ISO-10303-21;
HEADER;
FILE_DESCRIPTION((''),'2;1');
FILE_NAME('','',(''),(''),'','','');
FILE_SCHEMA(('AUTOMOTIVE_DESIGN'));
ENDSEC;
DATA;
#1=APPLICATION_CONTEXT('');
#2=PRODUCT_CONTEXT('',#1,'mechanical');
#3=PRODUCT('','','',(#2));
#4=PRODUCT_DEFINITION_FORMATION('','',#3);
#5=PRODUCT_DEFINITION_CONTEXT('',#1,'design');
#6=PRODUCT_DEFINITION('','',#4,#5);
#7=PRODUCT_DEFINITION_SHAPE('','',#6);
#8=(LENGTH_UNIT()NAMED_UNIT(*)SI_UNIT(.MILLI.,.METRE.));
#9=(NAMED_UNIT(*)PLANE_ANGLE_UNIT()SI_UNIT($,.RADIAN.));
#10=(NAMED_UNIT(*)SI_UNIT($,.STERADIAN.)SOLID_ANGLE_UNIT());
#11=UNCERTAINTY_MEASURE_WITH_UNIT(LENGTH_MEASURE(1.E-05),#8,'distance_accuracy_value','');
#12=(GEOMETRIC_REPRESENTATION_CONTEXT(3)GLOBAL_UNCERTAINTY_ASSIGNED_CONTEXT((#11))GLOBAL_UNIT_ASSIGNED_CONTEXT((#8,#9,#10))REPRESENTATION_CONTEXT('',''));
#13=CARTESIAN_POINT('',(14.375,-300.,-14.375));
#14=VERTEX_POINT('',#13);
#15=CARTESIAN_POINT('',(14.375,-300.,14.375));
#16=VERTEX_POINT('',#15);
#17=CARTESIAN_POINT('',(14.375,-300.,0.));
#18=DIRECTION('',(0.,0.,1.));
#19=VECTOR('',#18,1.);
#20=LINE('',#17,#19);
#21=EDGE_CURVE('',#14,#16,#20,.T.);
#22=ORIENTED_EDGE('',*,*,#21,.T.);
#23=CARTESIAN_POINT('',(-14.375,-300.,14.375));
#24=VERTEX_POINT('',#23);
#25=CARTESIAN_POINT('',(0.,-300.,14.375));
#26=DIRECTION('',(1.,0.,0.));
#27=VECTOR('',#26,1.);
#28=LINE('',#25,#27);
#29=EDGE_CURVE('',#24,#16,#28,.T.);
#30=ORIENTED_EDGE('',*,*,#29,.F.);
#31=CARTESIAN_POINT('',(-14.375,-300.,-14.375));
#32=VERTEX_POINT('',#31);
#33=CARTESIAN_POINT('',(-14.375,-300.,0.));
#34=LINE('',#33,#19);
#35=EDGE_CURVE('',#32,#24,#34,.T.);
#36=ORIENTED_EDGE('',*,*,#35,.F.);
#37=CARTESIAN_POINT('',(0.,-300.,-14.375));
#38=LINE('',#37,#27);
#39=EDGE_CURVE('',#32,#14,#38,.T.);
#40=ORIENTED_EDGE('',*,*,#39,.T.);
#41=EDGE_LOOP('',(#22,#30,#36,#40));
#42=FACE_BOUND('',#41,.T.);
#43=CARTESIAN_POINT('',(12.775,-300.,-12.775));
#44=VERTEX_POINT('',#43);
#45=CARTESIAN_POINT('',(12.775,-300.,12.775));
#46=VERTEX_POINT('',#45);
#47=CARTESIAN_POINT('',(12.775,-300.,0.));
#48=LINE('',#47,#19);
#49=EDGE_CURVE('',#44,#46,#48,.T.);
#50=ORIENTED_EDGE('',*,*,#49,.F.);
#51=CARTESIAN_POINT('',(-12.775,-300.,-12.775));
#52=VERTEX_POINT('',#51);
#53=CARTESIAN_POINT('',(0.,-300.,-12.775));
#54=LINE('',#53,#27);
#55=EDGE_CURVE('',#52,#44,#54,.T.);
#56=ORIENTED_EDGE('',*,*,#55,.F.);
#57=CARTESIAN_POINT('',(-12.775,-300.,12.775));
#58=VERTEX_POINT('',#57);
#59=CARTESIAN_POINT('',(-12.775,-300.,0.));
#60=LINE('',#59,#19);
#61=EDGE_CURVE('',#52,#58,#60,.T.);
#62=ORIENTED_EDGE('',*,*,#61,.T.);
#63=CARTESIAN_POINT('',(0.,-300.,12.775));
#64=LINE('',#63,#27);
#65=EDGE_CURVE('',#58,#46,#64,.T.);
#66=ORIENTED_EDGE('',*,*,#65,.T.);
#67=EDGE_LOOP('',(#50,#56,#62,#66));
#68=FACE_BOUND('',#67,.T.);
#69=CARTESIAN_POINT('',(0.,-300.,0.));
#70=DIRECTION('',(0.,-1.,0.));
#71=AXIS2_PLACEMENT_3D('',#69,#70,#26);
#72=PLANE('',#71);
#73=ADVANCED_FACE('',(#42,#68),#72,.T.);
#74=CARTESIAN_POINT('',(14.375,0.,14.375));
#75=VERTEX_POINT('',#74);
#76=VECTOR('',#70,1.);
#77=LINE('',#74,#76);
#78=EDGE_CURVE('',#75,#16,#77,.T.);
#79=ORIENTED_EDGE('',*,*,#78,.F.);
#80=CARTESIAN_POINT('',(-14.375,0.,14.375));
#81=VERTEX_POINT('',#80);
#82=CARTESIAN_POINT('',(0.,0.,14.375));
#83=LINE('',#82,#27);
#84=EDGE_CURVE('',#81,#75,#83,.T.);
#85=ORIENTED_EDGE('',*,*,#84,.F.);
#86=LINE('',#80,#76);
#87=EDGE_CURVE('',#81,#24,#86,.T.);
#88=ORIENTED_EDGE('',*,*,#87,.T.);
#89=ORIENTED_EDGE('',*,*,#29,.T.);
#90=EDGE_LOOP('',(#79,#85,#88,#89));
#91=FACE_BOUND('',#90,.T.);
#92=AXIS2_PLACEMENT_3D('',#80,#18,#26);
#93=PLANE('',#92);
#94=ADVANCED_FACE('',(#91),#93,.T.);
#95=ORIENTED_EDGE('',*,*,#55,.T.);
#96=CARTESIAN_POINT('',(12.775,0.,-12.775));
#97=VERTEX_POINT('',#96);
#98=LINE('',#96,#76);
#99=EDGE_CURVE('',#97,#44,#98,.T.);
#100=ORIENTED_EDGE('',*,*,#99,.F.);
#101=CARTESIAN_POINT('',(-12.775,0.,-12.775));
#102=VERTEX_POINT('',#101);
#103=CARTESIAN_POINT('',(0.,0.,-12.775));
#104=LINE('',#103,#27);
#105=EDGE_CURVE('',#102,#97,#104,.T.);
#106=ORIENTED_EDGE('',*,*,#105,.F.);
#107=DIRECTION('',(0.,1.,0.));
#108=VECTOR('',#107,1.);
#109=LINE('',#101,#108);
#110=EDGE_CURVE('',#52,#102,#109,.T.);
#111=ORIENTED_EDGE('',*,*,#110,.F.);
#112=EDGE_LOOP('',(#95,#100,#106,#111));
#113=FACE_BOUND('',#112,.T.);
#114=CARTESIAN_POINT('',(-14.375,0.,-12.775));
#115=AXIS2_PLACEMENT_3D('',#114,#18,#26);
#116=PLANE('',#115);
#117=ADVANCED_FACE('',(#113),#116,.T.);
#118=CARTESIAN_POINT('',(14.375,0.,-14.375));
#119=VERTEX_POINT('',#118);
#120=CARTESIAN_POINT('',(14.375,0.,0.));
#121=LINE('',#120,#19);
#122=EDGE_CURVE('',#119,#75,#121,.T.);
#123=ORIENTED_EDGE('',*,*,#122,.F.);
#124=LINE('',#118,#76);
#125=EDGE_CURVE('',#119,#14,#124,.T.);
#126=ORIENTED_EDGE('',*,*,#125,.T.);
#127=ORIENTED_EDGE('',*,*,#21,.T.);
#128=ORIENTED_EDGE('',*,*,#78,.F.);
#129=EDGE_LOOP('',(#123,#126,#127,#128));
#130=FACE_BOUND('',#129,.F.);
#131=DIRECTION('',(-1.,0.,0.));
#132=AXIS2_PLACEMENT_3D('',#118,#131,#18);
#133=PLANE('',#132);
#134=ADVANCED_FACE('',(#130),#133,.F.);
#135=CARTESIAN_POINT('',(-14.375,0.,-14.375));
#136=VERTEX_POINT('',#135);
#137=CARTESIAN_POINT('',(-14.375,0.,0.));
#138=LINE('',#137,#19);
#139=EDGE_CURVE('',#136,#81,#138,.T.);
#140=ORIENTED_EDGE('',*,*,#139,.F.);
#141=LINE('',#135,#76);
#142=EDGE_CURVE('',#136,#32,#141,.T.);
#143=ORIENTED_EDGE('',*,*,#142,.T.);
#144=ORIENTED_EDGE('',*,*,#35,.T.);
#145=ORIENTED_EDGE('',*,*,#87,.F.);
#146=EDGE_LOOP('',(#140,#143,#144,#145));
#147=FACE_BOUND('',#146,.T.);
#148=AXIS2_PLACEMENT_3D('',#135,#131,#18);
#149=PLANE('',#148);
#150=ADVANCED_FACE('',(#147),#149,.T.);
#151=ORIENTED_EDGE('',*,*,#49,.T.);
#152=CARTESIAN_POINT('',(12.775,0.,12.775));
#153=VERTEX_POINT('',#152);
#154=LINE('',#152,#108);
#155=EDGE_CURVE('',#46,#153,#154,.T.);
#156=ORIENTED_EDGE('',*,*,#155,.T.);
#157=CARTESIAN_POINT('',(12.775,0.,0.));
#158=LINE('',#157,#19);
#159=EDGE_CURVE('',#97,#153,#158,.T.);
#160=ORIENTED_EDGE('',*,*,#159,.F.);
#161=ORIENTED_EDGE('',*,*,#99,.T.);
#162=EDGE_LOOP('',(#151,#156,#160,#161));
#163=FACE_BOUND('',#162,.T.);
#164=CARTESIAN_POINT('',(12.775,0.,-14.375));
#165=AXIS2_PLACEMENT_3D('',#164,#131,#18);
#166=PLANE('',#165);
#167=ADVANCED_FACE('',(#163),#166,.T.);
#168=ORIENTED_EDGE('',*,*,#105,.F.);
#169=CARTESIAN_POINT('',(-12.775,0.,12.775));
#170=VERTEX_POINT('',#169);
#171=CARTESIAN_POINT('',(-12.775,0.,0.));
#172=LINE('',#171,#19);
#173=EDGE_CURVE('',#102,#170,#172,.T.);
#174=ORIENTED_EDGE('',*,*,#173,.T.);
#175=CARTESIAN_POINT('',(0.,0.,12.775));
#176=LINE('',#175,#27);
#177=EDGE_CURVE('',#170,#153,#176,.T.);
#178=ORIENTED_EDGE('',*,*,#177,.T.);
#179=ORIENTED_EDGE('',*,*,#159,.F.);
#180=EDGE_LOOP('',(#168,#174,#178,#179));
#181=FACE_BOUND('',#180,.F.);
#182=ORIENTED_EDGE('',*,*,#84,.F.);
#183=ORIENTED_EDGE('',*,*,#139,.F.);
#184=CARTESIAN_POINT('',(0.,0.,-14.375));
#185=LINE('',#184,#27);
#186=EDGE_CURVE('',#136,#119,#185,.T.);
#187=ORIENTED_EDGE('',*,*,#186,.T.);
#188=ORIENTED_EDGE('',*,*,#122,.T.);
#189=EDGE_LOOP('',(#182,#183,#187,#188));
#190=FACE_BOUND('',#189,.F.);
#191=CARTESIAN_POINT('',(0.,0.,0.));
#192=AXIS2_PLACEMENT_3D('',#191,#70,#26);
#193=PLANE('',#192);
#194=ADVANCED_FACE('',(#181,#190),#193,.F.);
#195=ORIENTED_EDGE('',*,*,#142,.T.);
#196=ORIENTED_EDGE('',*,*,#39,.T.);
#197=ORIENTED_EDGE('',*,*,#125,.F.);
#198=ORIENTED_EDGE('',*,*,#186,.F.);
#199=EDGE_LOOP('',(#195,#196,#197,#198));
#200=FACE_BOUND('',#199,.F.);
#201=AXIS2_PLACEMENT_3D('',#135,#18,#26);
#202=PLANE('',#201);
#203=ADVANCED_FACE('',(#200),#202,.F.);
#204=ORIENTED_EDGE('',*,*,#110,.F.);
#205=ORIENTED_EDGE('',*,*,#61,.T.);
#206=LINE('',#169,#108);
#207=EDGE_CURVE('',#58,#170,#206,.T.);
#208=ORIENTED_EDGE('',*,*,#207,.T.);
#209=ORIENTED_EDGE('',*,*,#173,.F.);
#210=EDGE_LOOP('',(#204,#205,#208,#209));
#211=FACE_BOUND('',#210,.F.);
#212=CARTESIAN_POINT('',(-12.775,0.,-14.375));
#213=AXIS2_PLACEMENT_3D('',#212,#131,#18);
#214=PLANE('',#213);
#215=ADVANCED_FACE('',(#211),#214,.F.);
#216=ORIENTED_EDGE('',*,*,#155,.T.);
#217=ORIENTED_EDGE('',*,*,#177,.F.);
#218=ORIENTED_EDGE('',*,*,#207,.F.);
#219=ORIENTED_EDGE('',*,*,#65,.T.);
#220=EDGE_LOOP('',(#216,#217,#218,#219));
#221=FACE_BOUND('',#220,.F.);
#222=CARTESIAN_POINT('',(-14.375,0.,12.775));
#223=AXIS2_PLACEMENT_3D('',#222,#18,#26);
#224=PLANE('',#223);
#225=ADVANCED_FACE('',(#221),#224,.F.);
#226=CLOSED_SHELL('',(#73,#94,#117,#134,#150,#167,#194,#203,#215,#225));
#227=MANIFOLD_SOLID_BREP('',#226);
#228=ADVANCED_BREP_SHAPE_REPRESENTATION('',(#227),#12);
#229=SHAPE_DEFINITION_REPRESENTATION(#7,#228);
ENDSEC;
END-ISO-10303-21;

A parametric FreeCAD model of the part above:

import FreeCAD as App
import Part
import Sketcher
from FreeCAD import Vector


def faces_at(feature, points):
    """Names of the faces that lie closest to the given points."""
    faces = feature.Shape.Faces
    near = lambda p: min(range(len(faces)), key=lambda i: faces[i].distToShape(Part.Vertex(*p))[0])
    return sorted({f"Face{near(p) + 1}" for p in points})

doc = App.newDocument("Part")
body = doc.addObject("PartDesign::Body", "Body")

# Sketch on XZ plane
sketch1 = body.newObject("Sketcher::SketchObject", "Sketch")
sketch1.AttachmentSupport = (doc.getObject("XZ_Plane"), [""])
sketch1.MapMode = "FlatFace"
sketch1.addGeometry([
    Part.LineSegment(Vector(-14, 14, 0), Vector(-14, -14, 0)),
    Part.LineSegment(Vector(-14, -14, 0), Vector(14, -14, 0)),
    Part.LineSegment(Vector(14, -14, 0), Vector(14, 14, 0)),
    Part.LineSegment(Vector(14, 14, 0), Vector(-14, 14, 0)),
], False)
sketch1.addConstraint([
    Sketcher.Constraint("Coincident", 0, 2, 1, 1),
    Sketcher.Constraint("Coincident", 1, 2, 2, 1),
    Sketcher.Constraint("Coincident", 2, 2, 3, 1),
    Sketcher.Constraint("Coincident", 3, 2, 0, 1),
    Sketcher.Constraint("Vertical", 0),
    Sketcher.Constraint("Horizontal", 1),
    Sketcher.Constraint("Vertical", 2),
    Sketcher.Constraint("Horizontal", 3),
    Sketcher.Constraint("Symmetric", 0, 2, 2, 2, -1, 1),
    Sketcher.Constraint("Equal", 3, 0),
    Sketcher.Constraint("DistanceX", 1, 1, 1, 2, 28.75),
])
pad1 = body.newObject("PartDesign::Pad", "Pad")
pad1.Profile = sketch1
pad1.Length = 300
doc.recompute()

thickness = body.newObject("PartDesign::Thickness", "Thickness")
thickness.Base = (pad1, faces_at(pad1, [(0, 0, 0), (0, -300, 0)]))
thickness.Value = 1.6
thickness.Reversed = True
thickness.Join = "Arc"

doc.recompute()
